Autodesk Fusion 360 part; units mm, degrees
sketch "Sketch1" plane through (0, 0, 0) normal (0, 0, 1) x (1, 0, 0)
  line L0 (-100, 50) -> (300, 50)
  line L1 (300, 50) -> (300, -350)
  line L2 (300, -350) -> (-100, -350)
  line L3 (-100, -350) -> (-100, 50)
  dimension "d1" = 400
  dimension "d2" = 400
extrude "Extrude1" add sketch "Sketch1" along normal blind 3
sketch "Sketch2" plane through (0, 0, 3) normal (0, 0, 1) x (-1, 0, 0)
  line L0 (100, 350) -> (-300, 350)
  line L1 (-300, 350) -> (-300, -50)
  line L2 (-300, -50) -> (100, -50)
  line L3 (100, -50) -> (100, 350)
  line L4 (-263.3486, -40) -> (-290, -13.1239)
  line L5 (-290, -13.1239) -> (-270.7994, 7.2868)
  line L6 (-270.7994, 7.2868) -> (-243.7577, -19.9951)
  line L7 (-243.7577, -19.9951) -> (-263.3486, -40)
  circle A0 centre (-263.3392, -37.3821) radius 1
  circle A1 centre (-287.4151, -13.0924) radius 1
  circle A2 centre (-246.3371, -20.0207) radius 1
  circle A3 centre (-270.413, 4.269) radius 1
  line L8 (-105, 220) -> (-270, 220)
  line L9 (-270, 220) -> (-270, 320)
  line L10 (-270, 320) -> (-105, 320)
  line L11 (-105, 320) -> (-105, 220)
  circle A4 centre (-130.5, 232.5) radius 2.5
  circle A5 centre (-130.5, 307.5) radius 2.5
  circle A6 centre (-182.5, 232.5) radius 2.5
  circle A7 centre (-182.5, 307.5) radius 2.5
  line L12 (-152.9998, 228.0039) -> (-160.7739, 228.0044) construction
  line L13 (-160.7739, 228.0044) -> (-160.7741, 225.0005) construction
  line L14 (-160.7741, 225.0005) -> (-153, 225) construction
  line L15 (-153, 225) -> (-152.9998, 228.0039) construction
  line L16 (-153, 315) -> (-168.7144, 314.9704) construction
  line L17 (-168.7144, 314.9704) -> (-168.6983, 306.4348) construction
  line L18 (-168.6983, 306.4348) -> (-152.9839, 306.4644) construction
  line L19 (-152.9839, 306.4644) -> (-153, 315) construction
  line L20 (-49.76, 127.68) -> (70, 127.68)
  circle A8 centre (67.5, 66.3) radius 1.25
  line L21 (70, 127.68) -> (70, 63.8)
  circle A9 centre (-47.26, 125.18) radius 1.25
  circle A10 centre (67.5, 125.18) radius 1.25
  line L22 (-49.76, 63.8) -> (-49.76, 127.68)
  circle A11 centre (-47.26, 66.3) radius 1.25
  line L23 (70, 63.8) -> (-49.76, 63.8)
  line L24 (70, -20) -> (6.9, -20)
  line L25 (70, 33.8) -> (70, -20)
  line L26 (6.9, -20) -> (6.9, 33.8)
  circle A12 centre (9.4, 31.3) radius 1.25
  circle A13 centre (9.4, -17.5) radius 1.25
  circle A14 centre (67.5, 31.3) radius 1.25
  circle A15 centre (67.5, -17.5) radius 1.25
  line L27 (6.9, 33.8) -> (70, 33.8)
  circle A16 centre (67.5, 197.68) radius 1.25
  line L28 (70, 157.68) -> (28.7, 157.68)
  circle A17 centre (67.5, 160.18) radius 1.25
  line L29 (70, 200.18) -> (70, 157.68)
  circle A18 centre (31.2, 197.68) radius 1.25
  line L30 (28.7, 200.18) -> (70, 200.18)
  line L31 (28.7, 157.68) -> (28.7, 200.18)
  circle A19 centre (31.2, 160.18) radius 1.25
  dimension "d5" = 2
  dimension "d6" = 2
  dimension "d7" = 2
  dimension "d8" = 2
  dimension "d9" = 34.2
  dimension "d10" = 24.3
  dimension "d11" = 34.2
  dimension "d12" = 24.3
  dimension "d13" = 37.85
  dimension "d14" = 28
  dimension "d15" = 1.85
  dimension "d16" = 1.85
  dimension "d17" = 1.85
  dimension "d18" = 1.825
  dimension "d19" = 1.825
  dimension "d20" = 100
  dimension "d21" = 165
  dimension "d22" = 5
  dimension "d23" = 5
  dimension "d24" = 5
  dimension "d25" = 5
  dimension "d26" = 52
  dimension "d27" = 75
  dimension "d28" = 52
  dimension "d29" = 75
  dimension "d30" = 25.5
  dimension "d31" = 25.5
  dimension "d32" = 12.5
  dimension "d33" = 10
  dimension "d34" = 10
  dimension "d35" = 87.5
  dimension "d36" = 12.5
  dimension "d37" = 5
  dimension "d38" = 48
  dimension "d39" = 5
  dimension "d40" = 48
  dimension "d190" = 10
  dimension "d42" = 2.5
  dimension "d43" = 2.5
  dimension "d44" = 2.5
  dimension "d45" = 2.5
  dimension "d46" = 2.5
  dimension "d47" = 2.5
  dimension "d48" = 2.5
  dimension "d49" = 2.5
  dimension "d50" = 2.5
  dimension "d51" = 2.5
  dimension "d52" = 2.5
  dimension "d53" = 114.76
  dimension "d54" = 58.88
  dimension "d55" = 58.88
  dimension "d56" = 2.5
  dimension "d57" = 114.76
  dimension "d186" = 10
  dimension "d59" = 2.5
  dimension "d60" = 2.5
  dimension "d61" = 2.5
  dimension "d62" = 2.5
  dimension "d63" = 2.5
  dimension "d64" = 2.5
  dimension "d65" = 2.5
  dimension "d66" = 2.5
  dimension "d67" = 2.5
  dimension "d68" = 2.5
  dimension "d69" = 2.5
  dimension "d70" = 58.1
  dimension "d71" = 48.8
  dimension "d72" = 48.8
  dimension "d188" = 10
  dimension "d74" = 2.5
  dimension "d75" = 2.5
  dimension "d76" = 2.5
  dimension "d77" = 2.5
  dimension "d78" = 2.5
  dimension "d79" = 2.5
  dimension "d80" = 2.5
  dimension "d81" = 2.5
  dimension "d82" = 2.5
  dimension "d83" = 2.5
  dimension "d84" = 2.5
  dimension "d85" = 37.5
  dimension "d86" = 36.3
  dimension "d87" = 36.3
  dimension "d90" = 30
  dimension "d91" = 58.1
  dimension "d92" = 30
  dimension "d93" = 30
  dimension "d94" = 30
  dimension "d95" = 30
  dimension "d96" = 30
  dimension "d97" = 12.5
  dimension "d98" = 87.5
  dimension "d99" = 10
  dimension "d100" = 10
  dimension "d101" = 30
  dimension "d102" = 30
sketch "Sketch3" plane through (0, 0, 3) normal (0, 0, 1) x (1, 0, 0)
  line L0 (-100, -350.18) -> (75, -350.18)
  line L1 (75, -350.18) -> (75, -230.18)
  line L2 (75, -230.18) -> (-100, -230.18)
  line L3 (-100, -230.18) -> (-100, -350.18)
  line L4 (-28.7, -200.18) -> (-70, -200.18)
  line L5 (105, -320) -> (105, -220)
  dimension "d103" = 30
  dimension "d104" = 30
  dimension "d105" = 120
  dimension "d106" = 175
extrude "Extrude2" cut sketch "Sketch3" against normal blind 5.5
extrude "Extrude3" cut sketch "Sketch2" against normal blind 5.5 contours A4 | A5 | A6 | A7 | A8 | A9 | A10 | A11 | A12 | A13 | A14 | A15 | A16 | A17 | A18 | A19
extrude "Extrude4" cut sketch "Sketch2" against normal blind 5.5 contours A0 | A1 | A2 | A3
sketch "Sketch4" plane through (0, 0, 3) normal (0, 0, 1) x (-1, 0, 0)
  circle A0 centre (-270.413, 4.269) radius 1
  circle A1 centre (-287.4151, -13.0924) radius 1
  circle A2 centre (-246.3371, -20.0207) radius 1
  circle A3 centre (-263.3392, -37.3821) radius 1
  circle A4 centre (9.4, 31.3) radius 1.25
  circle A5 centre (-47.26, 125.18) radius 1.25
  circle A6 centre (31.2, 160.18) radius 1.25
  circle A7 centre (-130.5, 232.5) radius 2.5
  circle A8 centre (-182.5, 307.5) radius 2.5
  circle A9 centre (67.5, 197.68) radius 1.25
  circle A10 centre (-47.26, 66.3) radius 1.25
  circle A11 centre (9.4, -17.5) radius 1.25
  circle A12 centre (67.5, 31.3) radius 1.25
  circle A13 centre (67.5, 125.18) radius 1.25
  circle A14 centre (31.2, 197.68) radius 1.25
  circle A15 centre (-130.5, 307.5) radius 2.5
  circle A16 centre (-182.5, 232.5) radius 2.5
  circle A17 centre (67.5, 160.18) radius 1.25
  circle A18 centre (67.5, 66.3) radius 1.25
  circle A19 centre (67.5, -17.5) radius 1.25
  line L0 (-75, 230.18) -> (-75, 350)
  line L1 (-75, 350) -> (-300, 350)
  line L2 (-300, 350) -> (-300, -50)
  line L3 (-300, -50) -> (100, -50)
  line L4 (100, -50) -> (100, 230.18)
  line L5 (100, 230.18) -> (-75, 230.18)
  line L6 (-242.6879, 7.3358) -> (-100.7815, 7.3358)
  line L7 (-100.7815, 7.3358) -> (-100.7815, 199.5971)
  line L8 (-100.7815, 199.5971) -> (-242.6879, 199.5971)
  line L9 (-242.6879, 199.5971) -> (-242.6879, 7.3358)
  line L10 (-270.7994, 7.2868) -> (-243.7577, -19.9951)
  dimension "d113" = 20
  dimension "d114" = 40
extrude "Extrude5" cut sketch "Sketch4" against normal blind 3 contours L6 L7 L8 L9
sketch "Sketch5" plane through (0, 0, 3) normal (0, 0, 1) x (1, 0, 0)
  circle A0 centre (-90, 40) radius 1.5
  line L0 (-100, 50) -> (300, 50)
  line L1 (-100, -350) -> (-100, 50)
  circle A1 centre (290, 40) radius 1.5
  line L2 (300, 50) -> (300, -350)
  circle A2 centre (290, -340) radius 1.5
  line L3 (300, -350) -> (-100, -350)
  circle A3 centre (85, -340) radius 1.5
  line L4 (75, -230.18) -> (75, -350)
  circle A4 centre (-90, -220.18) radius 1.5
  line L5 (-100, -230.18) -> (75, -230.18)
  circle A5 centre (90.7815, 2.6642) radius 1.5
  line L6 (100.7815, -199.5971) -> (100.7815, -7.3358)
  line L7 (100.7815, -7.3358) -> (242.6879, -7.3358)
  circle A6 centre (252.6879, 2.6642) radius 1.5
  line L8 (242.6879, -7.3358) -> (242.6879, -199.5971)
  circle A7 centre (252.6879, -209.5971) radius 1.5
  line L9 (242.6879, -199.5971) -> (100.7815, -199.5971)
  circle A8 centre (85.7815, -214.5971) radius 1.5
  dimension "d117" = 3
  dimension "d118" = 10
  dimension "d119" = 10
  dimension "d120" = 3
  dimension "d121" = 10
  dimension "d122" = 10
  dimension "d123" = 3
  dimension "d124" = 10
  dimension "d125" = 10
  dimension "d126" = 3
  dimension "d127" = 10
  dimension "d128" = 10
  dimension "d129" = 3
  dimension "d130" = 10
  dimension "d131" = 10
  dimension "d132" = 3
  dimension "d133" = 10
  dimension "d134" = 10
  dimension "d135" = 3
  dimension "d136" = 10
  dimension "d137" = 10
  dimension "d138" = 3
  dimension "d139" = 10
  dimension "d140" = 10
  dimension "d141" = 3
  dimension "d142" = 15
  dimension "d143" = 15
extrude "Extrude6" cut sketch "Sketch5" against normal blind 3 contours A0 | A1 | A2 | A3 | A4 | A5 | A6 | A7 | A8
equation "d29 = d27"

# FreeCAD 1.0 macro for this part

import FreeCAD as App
import Part
import Sketcher

V = App.Vector

doc = App.newDocument("Part")
body = doc.addObject("PartDesign::Body", "Body")

# Sketch on XY plane
sketch1 = body.newObject("Sketcher::SketchObject", "Sketch")
sketch1.AttachmentSupport = (doc.getObject("XY_Plane"), [""])
sketch1.MapMode = "FlatFace"
sketch1.addGeometry(Part.LineSegment(V(300, 50, 0), V(-100, 50, 0)), False)
sketch1.addGeometry(Part.LineSegment(V(-100, 50, 0), V(-100, -350, 0)), False)
sketch1.addGeometry(Part.LineSegment(V(-100, -350, 0), V(300, -350, 0)), False)
sketch1.addGeometry(Part.LineSegment(V(300, -350, 0), V(300, 50, 0)), False)
sketch1.addConstraint(Sketcher.Constraint("Coincident", 0, 2, 1, 1))
sketch1.addConstraint(Sketcher.Constraint("Coincident", 1, 2, 2, 1))
sketch1.addConstraint(Sketcher.Constraint("Coincident", 2, 2, 3, 1))
sketch1.addConstraint(Sketcher.Constraint("Coincident", 3, 2, 0, 1))
sketch1.addConstraint(Sketcher.Constraint("Horizontal", 0))
sketch1.addConstraint(Sketcher.Constraint("Vertical", 1))
sketch1.addConstraint(Sketcher.Constraint("Horizontal", 2))
sketch1.addConstraint(Sketcher.Constraint("Vertical", 3))
sketch1.addConstraint(Sketcher.Constraint("Equal", 2, 1))
sketch1.addConstraint(Sketcher.Constraint("DistanceX", 0, 2, 0, 1, 400.0))
sketch1.addConstraint(Sketcher.Constraint("DistanceX", 0, 2, -1, 1, 100.0))
sketch1.addConstraint(Sketcher.Constraint("DistanceY", -1, 1, 0, 2, 50.0))
pad1 = body.newObject("PartDesign::Pad", "Pad")
pad1.Profile = sketch1
pad1.Length = 3

# Sketch on XY plane
sketch2 = body.newObject("Sketcher::SketchObject", "Sketch001")
sketch2.AttachmentSupport = (doc.getObject("XY_Plane"), [""])
sketch2.MapMode = "FlatFace"
sketch2.AttachmentOffset = App.Placement(V(0, 0, 3), App.Rotation())
sketch2.addGeometry(Part.LineSegment(V(-100, -230.18, 0), V(-100, -350.18, 0)), False)
sketch2.addGeometry(Part.LineSegment(V(-100, -350.18, 0), V(75, -350.18, 0)), False)
sketch2.addGeometry(Part.LineSegment(V(75, -350.18, 0), V(75, -230.18, 0)), False)
sketch2.addGeometry(Part.LineSegment(V(75, -230.18, 0), V(-100, -230.18, 0)), False)
sketch2.addConstraint(Sketcher.Constraint("Coincident", 0, 2, 1, 1))
sketch2.addConstraint(Sketcher.Constraint("Coincident", 1, 2, 2, 1))
sketch2.addConstraint(Sketcher.Constraint("Coincident", 2, 2, 3, 1))
sketch2.addConstraint(Sketcher.Constraint("Coincident", 3, 2, 0, 1))
sketch2.addConstraint(Sketcher.Constraint("Vertical", 0))
sketch2.addConstraint(Sketcher.Constraint("Horizontal", 1))
sketch2.addConstraint(Sketcher.Constraint("Vertical", 2))
sketch2.addConstraint(Sketcher.Constraint("Horizontal", 3))
sketch2.addConstraint(Sketcher.Constraint("DistanceX", 1, 1, 1, 2, 175.0))
sketch2.addConstraint(Sketcher.Constraint("DistanceY", 0, 2, 0, 1, 120.0))
sketch2.addConstraint(Sketcher.Constraint("DistanceX", 0, 2, -1, 1, 100.0))
sketch2.addConstraint(Sketcher.Constraint("DistanceY", 0, 2, -1, 1, 350.18))
pocket1 = body.newObject("PartDesign::Pocket", "Pocket")
pocket1.Profile = sketch2
pocket1.Length = 5.5

# Sketch on XY plane
sketch3 = body.newObject("Sketcher::SketchObject", "Sketch002")
sketch3.AttachmentSupport = (doc.getObject("XY_Plane"), [""])
sketch3.MapMode = "FlatFace"
sketch3.AttachmentOffset = App.Placement(V(0, 0, 3), App.Rotation())
sketch3.addGeometry(Part.Circle(V(130.5, -232.5, 0), V(0, 0, 1), 2.5), False)
sketch3.addGeometry(Part.Circle(V(130.5, -307.5, 0), V(0, 0, 1), 2.5), False)
sketch3.addGeometry(Part.Circle(V(182.5, -232.5, 0), V(0, 0, 1), 2.5), False)
sketch3.addGeometry(Part.Circle(V(182.5, -307.5, 0), V(0, 0, 1), 2.5), False)
sketch3.addGeometry(Part.Circle(V(-67.5, -66.3, 0), V(0, 0, 1), 1.25), False)
sketch3.addGeometry(Part.Circle(V(47.26, -125.18, 0), V(0, 0, 1), 1.25), False)
sketch3.addGeometry(Part.Circle(V(-67.5, -125.18, 0), V(0, 0, 1), 1.25), False)
sketch3.addGeometry(Part.Circle(V(47.26, -66.3, 0), V(0, 0, 1), 1.25), False)
sketch3.addGeometry(Part.Circle(V(-9.4, -31.3, 0), V(0, 0, 1), 1.25), False)
sketch3.addGeometry(Part.Circle(V(-9.4, 17.5, 0), V(0, 0, 1), 1.25), False)
sketch3.addGeometry(Part.Circle(V(-67.5, -31.3, 0), V(0, 0, 1), 1.25), False)
sketch3.addGeometry(Part.Circle(V(-67.5, 17.5, 0), V(0, 0, 1), 1.25), False)
sketch3.addGeometry(Part.Circle(V(-67.5, -197.68, 0), V(0, 0, 1), 1.25), False)
sketch3.addGeometry(Part.Circle(V(-67.5, -160.18, 0), V(0, 0, 1), 1.25), False)
sketch3.addGeometry(Part.Circle(V(-31.2, -197.68, 0), V(0, 0, 1), 1.25), False)
sketch3.addGeometry(Part.Circle(V(-31.2, -160.18, 0), V(0, 0, 1), 1.25), False)
sketch3.addConstraint(Sketcher.Constraint("Equal", 0, 1))
sketch3.addConstraint(Sketcher.Constraint("Equal", 1, 2))
sketch3.addConstraint(Sketcher.Constraint("Equal", 2, 3))
sketch3.addConstraint(Sketcher.Constraint("Equal", 4, 5))
sketch3.addConstraint(Sketcher.Constraint("Equal", 5, 6))
sketch3.addConstraint(Sketcher.Constraint("Equal", 6, 7))
sketch3.addConstraint(Sketcher.Constraint("Equal", 7, 8))
sketch3.addConstraint(Sketcher.Constraint("Equal", 8, 9))
sketch3.addConstraint(Sketcher.Constraint("Equal", 9, 10))
sketch3.addConstraint(Sketcher.Constraint("Equal", 10, 11))
sketch3.addConstraint(Sketcher.Constraint("Equal", 11, 12))
sketch3.addConstraint(Sketcher.Constraint("Equal", 12, 13))
sketch3.addConstraint(Sketcher.Constraint("Equal", 13, 14))
sketch3.addConstraint(Sketcher.Constraint("Equal", 14, 15))
sketch3.addConstraint(Sketcher.Constraint("Horizontal", 0, 3, 2, 3))
sketch3.addConstraint(Sketcher.Constraint("Horizontal", 1, 3, 3, 3))
sketch3.addConstraint(Sketcher.Constraint("Horizontal", 5, 3, 6, 3))
sketch3.addConstraint(Sketcher.Constraint("Horizontal", 4, 3, 7, 3))
sketch3.addConstraint(Sketcher.Constraint("Horizontal", 8, 3, 10, 3))
sketch3.addConstraint(Sketcher.Constraint("Horizontal", 9, 3, 11, 3))
sketch3.addConstraint(Sketcher.Constraint("Horizontal", 12, 3, 14, 3))
sketch3.addConstraint(Sketcher.Constraint("Horizontal", 13, 3, 15, 3))
sketch3.addConstraint(Sketcher.Constraint("Vertical", 0, 3, 1, 3))
sketch3.addConstraint(Sketcher.Constraint("Vertical", 2, 3, 3, 3))
sketch3.addConstraint(Sketcher.Constraint("Vertical", 4, 3, 6, 3))
sketch3.addConstraint(Sketcher.Constraint("Vertical", 5, 3, 7, 3))
sketch3.addConstraint(Sketcher.Constraint("Vertical", 8, 3, 9, 3))
sketch3.addConstraint(Sketcher.Constraint("Vertical", 6, 3, 10, 3))
sketch3.addConstraint(Sketcher.Constraint("Vertical", 10, 3, 11, 3))
sketch3.addConstraint(Sketcher.Constraint("Vertical", 11, 3, 12, 3))
sketch3.addConstraint(Sketcher.Constraint("Vertical", 12, 3, 13, 3))
sketch3.addConstraint(Sketcher.Constraint("Vertical", 14, 3, 15, 3))
sketch3.addConstraint(Sketcher.Constraint("Diameter", 0, 5.0))
sketch3.addConstraint(Sketcher.Constraint("Diameter", 4, 2.5))
sketch3.addConstraint(Sketcher.Constraint("DistanceY", 1, 3, 0, 3, 75.0))
sketch3.addConstraint(Sketcher.Constraint("DistanceX", 0, 3, 2, 3, 52.0))
sketch3.addConstraint(Sketcher.Constraint("DistanceX", 4, 3, 8, 3, 58.1))
sketch3.addConstraint(Sketcher.Constraint("DistanceY", 8, 3, 9, 3, 48.8))
sketch3.addConstraint(Sketcher.Constraint("DistanceY", 12, 3, 13, 3, 37.5))
sketch3.addConstraint(Sketcher.Constraint("DistanceX", 12, 3, 14, 3, 36.3))
sketch3.addConstraint(Sketcher.Constraint("DistanceX", 4, 3, 5, 3, 114.76))
sketch3.addConstraint(Sketcher.Constraint("DistanceY", 5, 3, 4, 3, 58.88))
sketch3.addConstraint(Sketcher.Constraint("DistanceX", 4, 3, 0, 3, 198.0))
sketch3.addConstraint(Sketcher.Constraint("DistanceY", 7, 3, 8, 3, 35.0))
sketch3.addConstraint(Sketcher.Constraint("DistanceY", 13, 3, 6, 3, 35.0))
sketch3.addConstraint(Sketcher.Constraint("DistanceX", -1, 1, 0, 3, 130.5))
sketch3.addConstraint(Sketcher.Constraint("DistanceY", 0, 3, -1, 1, 232.5))
sketch3.addConstraint(Sketcher.Constraint("DistanceY", 4, 3, -1, 1, 66.3))
pocket2 = body.newObject("PartDesign::Pocket", "Pocket001")
pocket2.Profile = sketch3
pocket2.Length = 5.5

# Sketch on XY plane
sketch4 = body.newObject("Sketcher::SketchObject", "Sketch003")
sketch4.AttachmentSupport = (doc.getObject("XY_Plane"), [""])
sketch4.MapMode = "FlatFace"
sketch4.AttachmentOffset = App.Placement(V(0, 0, 3), App.Rotation())
sketch4.addGeometry(Part.Circle(V(263.3392, 37.3821, 0), V(0, 0, 1), 1), False)
sketch4.addGeometry(Part.Circle(V(287.4151, 13.0924, 0), V(0, 0, 1), 1), False)
sketch4.addGeometry(Part.Circle(V(246.3371, 20.0207, 0), V(0, 0, 1), 1), False)
sketch4.addGeometry(Part.Circle(V(270.413, -4.269, 0), V(0, 0, 1), 1), False)
sketch4.addConstraint(Sketcher.Constraint("Equal", 0, 1))
sketch4.addConstraint(Sketcher.Constraint("Equal", 1, 2))
sketch4.addConstraint(Sketcher.Constraint("Equal", 2, 3))
sketch4.addConstraint(Sketcher.Constraint("Diameter", 0, 2.0))
sketch4.addConstraint(Sketcher.Constraint("DistanceY", -1, 1, 0, 3, 37.382))
sketch4.addConstraint(Sketcher.Constraint("DistanceX", -1, 1, 1, 3, 287.415))
sketch4.addConstraint(Sketcher.Constraint("DistanceX", -1, 1, 2, 3, 246.337))
sketch4.addConstraint(Sketcher.Constraint("DistanceX", -1, 1, 3, 3, 270.413))
sketch4.addConstraint(Sketcher.Constraint("DistanceY", 3, 3, -1, 1, 4.269))
sketch4.addConstraint(Sketcher.Constraint("DistanceX", 0, 3, 1, 3, 24.076))
sketch4.addConstraint(Sketcher.Constraint("DistanceY", -1, 1, 1, 3, 13.0924))
sketch4.addConstraint(Sketcher.Constraint("DistanceY", -1, 1, 2, 3, 20.0207))
pocket3 = body.newObject("PartDesign::Pocket", "Pocket002")
pocket3.Profile = sketch4
pocket3.Length = 5.5

# Sketch on XY plane
sketch5 = body.newObject("Sketcher::SketchObject", "Sketch004")
sketch5.AttachmentSupport = (doc.getObject("XY_Plane"), [""])
sketch5.MapMode = "FlatFace"
sketch5.AttachmentOffset = App.Placement(V(0, 0, 3), App.Rotation())
sketch5.addGeometry(Part.LineSegment(V(242.6879, -199.5971, 0), V(242.6879, -7.3358, 0)), False)
sketch5.addGeometry(Part.LineSegment(V(242.6879, -7.3358, 0), V(100.7815, -7.3358, 0)), False)
sketch5.addGeometry(Part.LineSegment(V(100.7815, -7.3358, 0), V(100.7815, -199.5971, 0)), False)
sketch5.addGeometry(Part.LineSegment(V(100.7815, -199.5971, 0), V(242.6879, -199.5971, 0)), False)
sketch5.addConstraint(Sketcher.Constraint("Coincident", 0, 2, 1, 1))
sketch5.addConstraint(Sketcher.Constraint("Coincident", 1, 2, 2, 1))
sketch5.addConstraint(Sketcher.Constraint("Coincident", 2, 2, 3, 1))
sketch5.addConstraint(Sketcher.Constraint("Coincident", 3, 2, 0, 1))
sketch5.addConstraint(Sketcher.Constraint("Vertical", 0))
sketch5.addConstraint(Sketcher.Constraint("Horizontal", 1))
sketch5.addConstraint(Sketcher.Constraint("Vertical", 2))
sketch5.addConstraint(Sketcher.Constraint("Horizontal", 3))
sketch5.addConstraint(Sketcher.Constraint("DistanceX", 1, 2, 1, 1, 141.9064))
sketch5.addConstraint(Sketcher.Constraint("DistanceY", 0, 1, 0, 2, 192.2613))
sketch5.addConstraint(Sketcher.Constraint("DistanceX", -1, 1, 0, 2, 242.688))
sketch5.addConstraint(Sketcher.Constraint("DistanceY", 2, 2, -1, 1, 199.597))
pocket4 = body.newObject("PartDesign::Pocket", "Pocket003")
pocket4.Profile = sketch5
pocket4.Length = 3

# Sketch on XY plane
sketch6 = body.newObject("Sketcher::SketchObject", "Sketch005")
sketch6.AttachmentSupport = (doc.getObject("XY_Plane"), [""])
sketch6.MapMode = "FlatFace"
sketch6.AttachmentOffset = App.Placement(V(0, 0, 3), App.Rotation())
sketch6.addGeometry(Part.Circle(V(-90, 40, 0), V(0, 0, 1), 1.5), False)
sketch6.addGeometry(Part.Circle(V(290, 40, 0), V(0, 0, 1), 1.5), False)
sketch6.addGeometry(Part.Circle(V(290, -340, 0), V(0, 0, 1), 1.5), False)
sketch6.addGeometry(Part.Circle(V(85, -340, 0), V(0, 0, 1), 1.5), False)
sketch6.addGeometry(Part.Circle(V(-90, -220.18, 0), V(0, 0, 1), 1.5), False)
sketch6.addGeometry(Part.Circle(V(90.7815, 2.6642, 0), V(0, 0, 1), 1.5), False)
sketch6.addGeometry(Part.Circle(V(252.6879, 2.6642, 0), V(0, 0, 1), 1.5), False)
sketch6.addGeometry(Part.Circle(V(252.6879, -209.5971, 0), V(0, 0, 1), 1.5), False)
sketch6.addGeometry(Part.Circle(V(85.7815, -214.5971, 0), V(0, 0, 1), 1.5), False)
sketch6.addConstraint(Sketcher.Constraint("Equal", 0, 1))
sketch6.addConstraint(Sketcher.Constraint("Equal", 1, 2))
sketch6.addConstraint(Sketcher.Constraint("Equal", 2, 3))
sketch6.addConstraint(Sketcher.Constraint("Equal", 3, 4))
sketch6.addConstraint(Sketcher.Constraint("Equal", 4, 5))
sketch6.addConstraint(Sketcher.Constraint("Equal", 5, 6))
sketch6.addConstraint(Sketcher.Constraint("Equal", 6, 7))
sketch6.addConstraint(Sketcher.Constraint("Equal", 7, 8))
sketch6.addConstraint(Sketcher.Constraint("Horizontal", 0, 3, 1, 3))
sketch6.addConstraint(Sketcher.Constraint("Horizontal", 2, 3, 3, 3))
sketch6.addConstraint(Sketcher.Constraint("Horizontal", 5, 3, 6, 3))
sketch6.addConstraint(Sketcher.Constraint("Vertical", 1, 3, 2, 3))
sketch6.addConstraint(Sketcher.Constraint("Vertical", 0, 3, 4, 3))
sketch6.addConstraint(Sketcher.Constraint("Vertical", 6, 3, 7, 3))
sketch6.addConstraint(Sketcher.Constraint("Diameter", 0, 3.0))
sketch6.addConstraint(Sketcher.Constraint("DistanceX", 0, 3, -1, 1, 90.0))
sketch6.addConstraint(Sketcher.Constraint("DistanceY", -1, 1, 0, 3, 40.0))
sketch6.addConstraint(Sketcher.Constraint("DistanceX", -1, 1, 1, 3, 290.0))
sketch6.addConstraint(Sketcher.Constraint("DistanceY", 2, 3, -1, 1, 340.0))
sketch6.addConstraint(Sketcher.Constraint("DistanceX", -1, 1, 3, 3, 85.0))
sketch6.addConstraint(Sketcher.Constraint("DistanceY", 8, 3, 7, 3, 5.0))
sketch6.addConstraint(Sketcher.Constraint("DistanceX", 8, 3, 5, 3, 5.0))
sketch6.addConstraint(Sketcher.Constraint("DistanceY", 4, 3, -1, 1, 220.18))
sketch6.addConstraint(Sketcher.Constraint("DistanceX", -1, 1, 6, 3, 252.688))
sketch6.addConstraint(Sketcher.Constraint("DistanceY", 7, 3, -1, 1, 209.597))
sketch6.addConstraint(Sketcher.Constraint("DistanceX", -1, 1, 5, 3, 90.7815))
sketch6.addConstraint(Sketcher.Constraint("DistanceY", -1, 1, 5, 3, 2.6642))
pocket5 = body.newObject("PartDesign::Pocket", "Pocket004")
pocket5.Profile = sketch6
pocket5.Length = 3

doc.recompute()
